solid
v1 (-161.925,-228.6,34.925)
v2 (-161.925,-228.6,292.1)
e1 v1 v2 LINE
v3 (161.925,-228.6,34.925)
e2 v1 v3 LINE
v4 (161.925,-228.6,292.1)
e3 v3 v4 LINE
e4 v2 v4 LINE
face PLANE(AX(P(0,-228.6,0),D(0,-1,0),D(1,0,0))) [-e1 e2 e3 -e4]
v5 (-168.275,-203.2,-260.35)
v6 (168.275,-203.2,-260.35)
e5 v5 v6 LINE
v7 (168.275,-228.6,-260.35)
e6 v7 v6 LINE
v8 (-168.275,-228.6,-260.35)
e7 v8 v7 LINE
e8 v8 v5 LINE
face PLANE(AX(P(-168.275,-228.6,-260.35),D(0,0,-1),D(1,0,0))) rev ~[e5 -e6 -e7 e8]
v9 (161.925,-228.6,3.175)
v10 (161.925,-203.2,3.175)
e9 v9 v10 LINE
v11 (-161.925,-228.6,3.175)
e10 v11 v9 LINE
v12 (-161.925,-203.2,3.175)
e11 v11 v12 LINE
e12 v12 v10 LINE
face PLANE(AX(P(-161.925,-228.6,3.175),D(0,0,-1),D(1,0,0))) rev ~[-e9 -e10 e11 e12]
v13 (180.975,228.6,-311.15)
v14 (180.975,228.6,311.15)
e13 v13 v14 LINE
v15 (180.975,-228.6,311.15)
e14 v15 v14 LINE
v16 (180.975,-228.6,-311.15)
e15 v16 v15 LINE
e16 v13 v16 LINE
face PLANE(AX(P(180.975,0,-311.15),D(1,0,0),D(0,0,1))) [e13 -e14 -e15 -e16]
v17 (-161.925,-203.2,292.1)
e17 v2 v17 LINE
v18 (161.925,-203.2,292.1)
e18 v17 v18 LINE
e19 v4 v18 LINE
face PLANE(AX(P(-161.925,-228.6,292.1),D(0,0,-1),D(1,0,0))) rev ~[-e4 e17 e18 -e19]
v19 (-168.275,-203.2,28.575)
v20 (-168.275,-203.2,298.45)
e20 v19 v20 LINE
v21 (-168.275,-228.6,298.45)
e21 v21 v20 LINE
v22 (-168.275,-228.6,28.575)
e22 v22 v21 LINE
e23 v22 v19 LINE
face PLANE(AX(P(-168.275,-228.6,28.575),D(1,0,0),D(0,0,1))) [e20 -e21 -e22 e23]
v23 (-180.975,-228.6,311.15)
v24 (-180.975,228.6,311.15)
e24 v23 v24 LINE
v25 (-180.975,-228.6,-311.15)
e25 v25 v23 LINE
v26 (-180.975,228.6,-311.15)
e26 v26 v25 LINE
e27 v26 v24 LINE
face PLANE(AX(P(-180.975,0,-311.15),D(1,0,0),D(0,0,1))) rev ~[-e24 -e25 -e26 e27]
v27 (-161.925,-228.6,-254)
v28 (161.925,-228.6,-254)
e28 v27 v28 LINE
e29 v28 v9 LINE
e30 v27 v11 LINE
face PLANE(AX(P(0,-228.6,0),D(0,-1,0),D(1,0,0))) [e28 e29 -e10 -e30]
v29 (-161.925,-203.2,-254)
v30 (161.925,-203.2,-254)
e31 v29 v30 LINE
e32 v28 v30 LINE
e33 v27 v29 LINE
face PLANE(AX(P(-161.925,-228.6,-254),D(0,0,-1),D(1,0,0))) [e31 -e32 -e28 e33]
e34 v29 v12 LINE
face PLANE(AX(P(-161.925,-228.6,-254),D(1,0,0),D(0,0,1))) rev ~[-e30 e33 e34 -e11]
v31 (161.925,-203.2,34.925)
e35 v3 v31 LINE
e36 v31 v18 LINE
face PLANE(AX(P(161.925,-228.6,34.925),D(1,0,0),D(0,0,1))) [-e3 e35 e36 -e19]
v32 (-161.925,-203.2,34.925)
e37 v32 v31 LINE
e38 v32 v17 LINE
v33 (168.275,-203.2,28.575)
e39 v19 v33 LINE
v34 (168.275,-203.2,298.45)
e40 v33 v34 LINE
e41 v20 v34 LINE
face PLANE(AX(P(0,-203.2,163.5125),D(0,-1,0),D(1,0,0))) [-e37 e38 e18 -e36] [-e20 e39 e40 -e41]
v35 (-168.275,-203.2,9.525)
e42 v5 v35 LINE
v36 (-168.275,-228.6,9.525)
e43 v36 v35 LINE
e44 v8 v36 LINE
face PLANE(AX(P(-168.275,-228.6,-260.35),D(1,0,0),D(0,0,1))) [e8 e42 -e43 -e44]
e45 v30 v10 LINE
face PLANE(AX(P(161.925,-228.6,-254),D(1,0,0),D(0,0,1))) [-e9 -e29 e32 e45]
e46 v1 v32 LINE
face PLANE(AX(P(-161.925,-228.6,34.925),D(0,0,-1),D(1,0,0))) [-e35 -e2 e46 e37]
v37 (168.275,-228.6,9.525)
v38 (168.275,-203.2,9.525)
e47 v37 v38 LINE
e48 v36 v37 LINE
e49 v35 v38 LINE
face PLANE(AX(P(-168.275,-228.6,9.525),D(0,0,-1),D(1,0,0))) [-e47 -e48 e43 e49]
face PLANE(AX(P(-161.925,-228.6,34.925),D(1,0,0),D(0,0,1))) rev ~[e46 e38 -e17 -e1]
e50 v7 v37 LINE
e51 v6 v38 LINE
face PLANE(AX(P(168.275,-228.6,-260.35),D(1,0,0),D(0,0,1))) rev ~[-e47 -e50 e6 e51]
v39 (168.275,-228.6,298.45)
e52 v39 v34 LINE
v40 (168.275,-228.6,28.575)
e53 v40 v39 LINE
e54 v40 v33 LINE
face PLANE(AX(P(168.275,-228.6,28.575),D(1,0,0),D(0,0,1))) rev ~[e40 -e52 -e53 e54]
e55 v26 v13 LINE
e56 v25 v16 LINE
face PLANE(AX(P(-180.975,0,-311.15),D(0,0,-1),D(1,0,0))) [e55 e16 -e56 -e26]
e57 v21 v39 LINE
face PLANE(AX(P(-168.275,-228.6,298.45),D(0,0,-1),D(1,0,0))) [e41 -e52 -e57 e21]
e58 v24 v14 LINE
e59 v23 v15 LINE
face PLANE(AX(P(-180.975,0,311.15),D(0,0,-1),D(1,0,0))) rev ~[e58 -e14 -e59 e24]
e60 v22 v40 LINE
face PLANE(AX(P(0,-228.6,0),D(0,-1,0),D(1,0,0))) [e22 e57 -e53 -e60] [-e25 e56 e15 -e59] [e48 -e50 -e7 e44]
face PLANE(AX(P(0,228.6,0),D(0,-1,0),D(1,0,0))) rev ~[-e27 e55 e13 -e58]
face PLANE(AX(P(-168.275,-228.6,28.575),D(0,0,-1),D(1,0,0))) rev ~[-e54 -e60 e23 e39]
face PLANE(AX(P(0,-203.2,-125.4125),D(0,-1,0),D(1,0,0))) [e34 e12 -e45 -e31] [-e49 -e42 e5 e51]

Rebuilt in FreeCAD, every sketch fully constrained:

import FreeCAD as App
import Part
import Sketcher
Q = App.Units.Quantity


def add_polygon(sketch, points):
    """Adds a closed chain of lines whose ends are joined by coincident constraints."""
    first, n = sketch.GeometryCount, len(points)
    for a, b in zip(points, points[1:] + points[:1]):
        sketch.addGeometry(Part.LineSegment(App.Vector(*a, 0), App.Vector(*b, 0)), False)
    for i in range(n):
        sketch.addConstraint(Sketcher.Constraint("Coincident", first + i, 2, first + (i + 1) % n, 1))

doc = App.newDocument("Part")
params = doc.addObject("Spreadsheet::Sheet", "Params")
for row, (alias, value) in enumerate([
    ("sketch1_height", "24.5 in"),
    ("sketch1_width", "14.25 in"),
    ("pad1_length", "18 in"),
    ("sketch2_width", "13.25 in"),
    ("sketch2_height", "10.625 in"),
    ("sketch2_height2", "10.125 in"),
    ("pocket1_length", "1 in"),
], start=1):
    params.set(f"A{row}", alias)
    params.set(f"B{row}", "=" + value)
    params.setAlias(f"B{row}", alias)

body = doc.addObject("PartDesign::Body", "Body")

sketch1 = body.newObject("Sketcher::SketchObject", "Sketch")
sketch1.AttachmentSupport = (doc.getObject("XZ_Plane"), [""])
sketch1.MapMode = "FlatFace"
add_polygon(sketch1, [(-181, 311), (-181, -311), (181, -311), (181, 311)])
sketch1.addConstraint(Sketcher.Constraint("Vertical", 0))
sketch1.addConstraint(Sketcher.Constraint("Horizontal", 1))
sketch1.addConstraint(Sketcher.Constraint("Vertical", 2))
sketch1.addConstraint(Sketcher.Constraint("Horizontal", 3))
sketch1.addConstraint(Sketcher.Constraint("Symmetric", 0, 2, 2, 2, -1, 1))
sketch1.addConstraint(Sketcher.Constraint("DistanceY", 0, 2, 0, 1, Q("24.5 in")))
sketch1.addConstraint(Sketcher.Constraint("DistanceX", 1, 1, 1, 2, Q("14.25 in")))
sketch1.setExpression("Constraints[9]", "Params.sketch1_height")
sketch1.setExpression("Constraints[10]", "Params.sketch1_width")
pad1 = body.newObject("PartDesign::Pad", "Pad")
pad1.Profile = sketch1
pad1.setExpression("Length", "Params.pad1_length")
pad1.Midplane = True

sketch2 = body.newObject("Sketcher::SketchObject", "Sketch001")
sketch2.AttachmentSupport = (doc.getObject("XZ_Plane"), [""])
sketch2.MapMode = "FlatFace"
sketch2.AttachmentOffset = App.Placement(App.Vector(0, 0, 9 * 25.4), App.Rotation())
add_polygon(sketch2, [(-168, 298), (-168, 29), (168, 29), (168, 298)])
add_polygon(sketch2, [(162, 35), (-162, 35), (-162, 292), (162, 292)])
add_polygon(sketch2, [(-168, 10), (-168, -260), (168, -260), (168, 10)])
add_polygon(sketch2, [(162, -254), (-162, -254), (-162, 3), (162, 3)])
sketch2.addConstraint(Sketcher.Constraint("Vertical", 0))
sketch2.addConstraint(Sketcher.Constraint("Horizontal", 1))
sketch2.addConstraint(Sketcher.Constraint("Vertical", 2))
sketch2.addConstraint(Sketcher.Constraint("Horizontal", 3))
sketch2.addConstraint(Sketcher.Constraint("Horizontal", 4))
sketch2.addConstraint(Sketcher.Constraint("Vertical", 5))
sketch2.addConstraint(Sketcher.Constraint("Horizontal", 6))
sketch2.addConstraint(Sketcher.Constraint("Vertical", 7))
sketch2.addConstraint(Sketcher.Constraint("Vertical", 8))
sketch2.addConstraint(Sketcher.Constraint("Horizontal", 9))
sketch2.addConstraint(Sketcher.Constraint("Vertical", 10))
sketch2.addConstraint(Sketcher.Constraint("Horizontal", 11))
sketch2.addConstraint(Sketcher.Constraint("Horizontal", 12))
sketch2.addConstraint(Sketcher.Constraint("Vertical", 13))
sketch2.addConstraint(Sketcher.Constraint("Horizontal", 14))
sketch2.addConstraint(Sketcher.Constraint("Vertical", 15))
sketch2.addConstraint(Sketcher.Constraint("Vertical", 3, 2, 8, 2))
sketch2.addConstraint(Sketcher.Constraint("Vertical", 2, 2, 9, 2))
sketch2.addConstraint(Sketcher.Constraint("Vertical", 5, 2, 12, 2))
sketch2.addConstraint(Sketcher.Constraint("Vertical", 7, 2, 14, 2))
sketch2.addConstraint(Sketcher.Constraint("Equal", 2, 8))
sketch2.addConstraint(Sketcher.Constraint("Equal", 7, 13))
sketch2.addConstraint(Sketcher.Constraint("DistanceY", 12, 2, -1, 1, Q("10 in")))
sketch2.addConstraint(Sketcher.Constraint("DistanceX", 4, 2, 1, 2, Q("13 in")))
sketch2.addConstraint(Sketcher.Constraint("DistanceX", 3, 2, 6, 2, Q("13 in")))
sketch2.addConstraint(Sketcher.Constraint("DistanceY", 10, 2, 7, 2, Q("1 in")))
sketch2.addConstraint(Sketcher.Constraint("DistanceY", 13, 2, 0, 2, Q("1 in")))
sketch2.addConstraint(Sketcher.Constraint("DistanceX", 1, 1, 1, 2, Q("13.25 in")))
sketch2.addConstraint(Sketcher.Constraint("DistanceY", -1, 1, 5, 2, Q("11.5 in")))
sketch2.addConstraint(Sketcher.Constraint("DistanceY", 0, 2, 0, 1, Q("10.625 in")))
sketch2.addConstraint(Sketcher.Constraint("DistanceY", 5, 1, 5, 2, Q("10.125 in")))
sketch2.addConstraint(Sketcher.Constraint("DistanceX", 0, 2, -1, 1, Q("6.625 in")))
sketch2.setExpression("Constraints[43]", "Params.sketch2_width")
sketch2.setExpression("Constraints[45]", "Params.sketch2_height")
sketch2.setExpression("Constraints[46]", "Params.sketch2_height2")
pocket1 = body.newObject("PartDesign::Pocket", "Pocket")
pocket1.Profile = sketch2
pocket1.setExpression("Length", "Params.pocket1_length")

doc.recompute()
